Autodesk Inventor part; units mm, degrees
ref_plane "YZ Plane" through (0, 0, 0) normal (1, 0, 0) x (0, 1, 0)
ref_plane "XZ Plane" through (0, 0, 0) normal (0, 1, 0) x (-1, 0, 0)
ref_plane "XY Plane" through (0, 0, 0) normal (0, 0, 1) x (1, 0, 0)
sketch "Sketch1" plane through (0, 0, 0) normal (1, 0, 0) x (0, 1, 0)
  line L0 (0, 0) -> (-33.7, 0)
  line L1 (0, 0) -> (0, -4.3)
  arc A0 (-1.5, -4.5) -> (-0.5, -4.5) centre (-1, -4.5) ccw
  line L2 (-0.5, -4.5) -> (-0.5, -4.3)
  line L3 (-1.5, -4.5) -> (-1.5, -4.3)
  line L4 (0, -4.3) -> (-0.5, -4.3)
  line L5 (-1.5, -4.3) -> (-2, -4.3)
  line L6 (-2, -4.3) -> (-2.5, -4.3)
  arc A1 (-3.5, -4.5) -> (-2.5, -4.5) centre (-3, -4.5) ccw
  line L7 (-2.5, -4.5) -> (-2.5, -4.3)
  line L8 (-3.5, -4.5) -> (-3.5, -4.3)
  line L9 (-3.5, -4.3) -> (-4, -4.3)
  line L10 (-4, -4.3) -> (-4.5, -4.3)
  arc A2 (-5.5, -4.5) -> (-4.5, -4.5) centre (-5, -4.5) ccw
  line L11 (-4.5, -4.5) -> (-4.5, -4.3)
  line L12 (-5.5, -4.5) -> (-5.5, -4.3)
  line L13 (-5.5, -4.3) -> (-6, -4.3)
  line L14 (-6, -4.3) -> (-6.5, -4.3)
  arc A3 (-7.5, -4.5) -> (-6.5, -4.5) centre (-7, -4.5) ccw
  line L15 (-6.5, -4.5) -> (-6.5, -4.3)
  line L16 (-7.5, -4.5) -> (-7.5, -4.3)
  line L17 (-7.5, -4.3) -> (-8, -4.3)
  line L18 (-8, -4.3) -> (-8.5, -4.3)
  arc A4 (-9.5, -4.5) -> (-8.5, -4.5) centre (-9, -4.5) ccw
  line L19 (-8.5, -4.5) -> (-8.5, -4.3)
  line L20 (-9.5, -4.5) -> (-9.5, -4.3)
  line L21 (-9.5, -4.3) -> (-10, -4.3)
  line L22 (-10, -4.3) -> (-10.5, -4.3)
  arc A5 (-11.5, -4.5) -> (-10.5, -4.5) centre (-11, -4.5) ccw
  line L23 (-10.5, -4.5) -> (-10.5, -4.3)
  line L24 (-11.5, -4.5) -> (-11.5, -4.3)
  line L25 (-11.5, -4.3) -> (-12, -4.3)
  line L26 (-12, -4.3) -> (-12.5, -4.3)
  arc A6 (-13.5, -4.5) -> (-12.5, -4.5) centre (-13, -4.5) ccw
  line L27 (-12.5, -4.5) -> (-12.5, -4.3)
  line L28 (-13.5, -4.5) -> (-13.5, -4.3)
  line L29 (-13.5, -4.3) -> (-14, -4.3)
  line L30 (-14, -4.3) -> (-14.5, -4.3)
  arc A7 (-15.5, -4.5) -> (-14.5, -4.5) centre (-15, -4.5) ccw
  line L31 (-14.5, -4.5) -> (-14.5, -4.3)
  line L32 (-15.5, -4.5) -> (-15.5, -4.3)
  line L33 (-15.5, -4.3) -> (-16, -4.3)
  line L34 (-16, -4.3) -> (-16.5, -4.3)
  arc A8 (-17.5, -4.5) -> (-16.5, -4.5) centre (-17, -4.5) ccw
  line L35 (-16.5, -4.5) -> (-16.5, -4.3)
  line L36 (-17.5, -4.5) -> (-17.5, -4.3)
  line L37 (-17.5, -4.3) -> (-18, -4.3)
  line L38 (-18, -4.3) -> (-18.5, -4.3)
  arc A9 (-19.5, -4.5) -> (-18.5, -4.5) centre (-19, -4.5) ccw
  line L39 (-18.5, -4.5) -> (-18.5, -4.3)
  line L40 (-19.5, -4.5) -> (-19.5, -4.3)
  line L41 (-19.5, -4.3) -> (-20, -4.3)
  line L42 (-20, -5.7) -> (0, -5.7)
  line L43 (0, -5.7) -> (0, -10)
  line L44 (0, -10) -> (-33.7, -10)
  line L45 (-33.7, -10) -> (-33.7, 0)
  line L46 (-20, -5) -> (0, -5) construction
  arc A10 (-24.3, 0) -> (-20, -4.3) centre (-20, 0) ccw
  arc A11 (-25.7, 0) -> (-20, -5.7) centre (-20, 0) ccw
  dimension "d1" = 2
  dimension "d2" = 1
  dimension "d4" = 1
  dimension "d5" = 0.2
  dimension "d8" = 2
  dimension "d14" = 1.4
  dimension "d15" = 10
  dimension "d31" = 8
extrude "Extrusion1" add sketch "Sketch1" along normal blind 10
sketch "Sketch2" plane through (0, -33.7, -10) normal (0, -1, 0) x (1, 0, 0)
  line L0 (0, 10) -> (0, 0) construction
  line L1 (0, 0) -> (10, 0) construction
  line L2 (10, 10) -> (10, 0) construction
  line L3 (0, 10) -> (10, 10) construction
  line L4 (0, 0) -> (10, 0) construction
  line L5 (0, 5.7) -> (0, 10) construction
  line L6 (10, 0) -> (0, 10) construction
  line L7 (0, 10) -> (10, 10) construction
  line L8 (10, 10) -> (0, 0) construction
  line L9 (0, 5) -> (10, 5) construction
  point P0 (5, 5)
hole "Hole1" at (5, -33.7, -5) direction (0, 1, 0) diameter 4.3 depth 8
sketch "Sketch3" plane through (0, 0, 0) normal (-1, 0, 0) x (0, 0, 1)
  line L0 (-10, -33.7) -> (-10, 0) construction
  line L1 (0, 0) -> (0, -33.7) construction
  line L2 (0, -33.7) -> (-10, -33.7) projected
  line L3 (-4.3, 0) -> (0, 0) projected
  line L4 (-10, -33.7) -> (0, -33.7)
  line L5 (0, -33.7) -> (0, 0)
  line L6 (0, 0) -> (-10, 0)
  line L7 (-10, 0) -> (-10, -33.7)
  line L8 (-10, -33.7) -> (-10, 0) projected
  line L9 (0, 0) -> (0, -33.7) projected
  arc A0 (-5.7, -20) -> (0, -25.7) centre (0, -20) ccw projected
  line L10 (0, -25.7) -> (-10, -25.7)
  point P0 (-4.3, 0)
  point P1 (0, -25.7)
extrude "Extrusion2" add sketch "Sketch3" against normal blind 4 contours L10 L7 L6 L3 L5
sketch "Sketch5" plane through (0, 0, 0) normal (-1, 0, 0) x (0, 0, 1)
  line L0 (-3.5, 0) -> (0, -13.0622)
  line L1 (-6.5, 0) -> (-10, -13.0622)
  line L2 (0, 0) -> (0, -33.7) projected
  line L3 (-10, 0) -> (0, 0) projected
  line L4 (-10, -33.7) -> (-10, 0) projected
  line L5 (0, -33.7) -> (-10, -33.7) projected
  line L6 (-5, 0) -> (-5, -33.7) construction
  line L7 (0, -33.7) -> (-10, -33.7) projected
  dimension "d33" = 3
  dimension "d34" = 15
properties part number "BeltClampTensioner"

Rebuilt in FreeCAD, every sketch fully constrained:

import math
import FreeCAD as App
import Part
import Sketcher

V = App.Vector

doc = App.newDocument("Part")
body = doc.addObject("PartDesign::Body", "Body")
body.AllowCompound = True

sketch1 = body.newObject("Sketcher::SketchObject", "Sketch")
sketch1.AttachmentSupport = (doc.getObject("YZ_Plane"), [""])
sketch1.MapMode = "FlatFace"
sketch1.addGeometry(Part.LineSegment(V(0, -4.3, 0), V(0, 0, 0)), False)
sketch1.addGeometry(Part.LineSegment(V(0, 0, 0), V(-24.3, 0, 0)), False)
sketch1.addGeometry(Part.ArcOfCircle(Part.Circle(V(-20, 0, 0), V(0, 0, 1), 4.3), math.radians(180), math.radians(270)), False)
sketch1.addGeometry(Part.LineSegment(V(-20, -4.3, 0), V(-19.5, -4.3, 0)), False)
sketch1.addGeometry(Part.LineSegment(V(-19.5, -4.3, 0), V(-19.5, -4.5, 0)), False)
sketch1.addGeometry(Part.ArcOfCircle(Part.Circle(V(-19, -4.5, 0), V(0, 0, 1), 0.5), math.radians(180), math.radians(360)), False)
sketch1.addGeometry(Part.LineSegment(V(-18.5, -4.5, 0), V(-18.5, -4.3, 0)), False)
sketch1.addGeometry(Part.LineSegment(V(-18.5, -4.3, 0), V(-17.5, -4.3, 0)), False)
sketch1.addGeometry(Part.LineSegment(V(-17.5, -4.3, 0), V(-17.5, -4.5, 0)), False)
sketch1.addGeometry(Part.ArcOfCircle(Part.Circle(V(-17, -4.5, 0), V(0, 0, 1), 0.5), math.radians(180), math.radians(360)), False)
sketch1.addGeometry(Part.LineSegment(V(-16.5, -4.5, 0), V(-16.5, -4.3, 0)), False)
sketch1.addGeometry(Part.LineSegment(V(-16.5, -4.3, 0), V(-15.5, -4.3, 0)), False)
sketch1.addGeometry(Part.LineSegment(V(-15.5, -4.3, 0), V(-15.5, -4.5, 0)), False)
sketch1.addGeometry(Part.ArcOfCircle(Part.Circle(V(-15, -4.5, 0), V(0, 0, 1), 0.5), math.radians(180), math.radians(360)), False)
sketch1.addGeometry(Part.LineSegment(V(-14.5, -4.5, 0), V(-14.5, -4.3, 0)), False)
sketch1.addGeometry(Part.LineSegment(V(-14.5, -4.3, 0), V(-13.5, -4.3, 0)), False)
sketch1.addGeometry(Part.LineSegment(V(-13.5, -4.3, 0), V(-13.5, -4.5, 0)), False)
sketch1.addGeometry(Part.ArcOfCircle(Part.Circle(V(-13, -4.5, 0), V(0, 0, 1), 0.5), math.radians(180), math.radians(360)), False)
sketch1.addGeometry(Part.LineSegment(V(-12.5, -4.5, 0), V(-12.5, -4.3, 0)), False)
sketch1.addGeometry(Part.LineSegment(V(-12.5, -4.3, 0), V(-11.5, -4.3, 0)), False)
sketch1.addGeometry(Part.LineSegment(V(-11.5, -4.3, 0), V(-11.5, -4.5, 0)), False)
sketch1.addGeometry(Part.ArcOfCircle(Part.Circle(V(-11, -4.5, 0), V(0, 0, 1), 0.5), math.radians(180), math.radians(360)), False)
sketch1.addGeometry(Part.LineSegment(V(-10.5, -4.5, 0), V(-10.5, -4.3, 0)), False)
sketch1.addGeometry(Part.LineSegment(V(-10.5, -4.3, 0), V(-9.5, -4.3, 0)), False)
sketch1.addGeometry(Part.LineSegment(V(-9.5, -4.3, 0), V(-9.5, -4.5, 0)), False)
sketch1.addGeometry(Part.ArcOfCircle(Part.Circle(V(-9, -4.5, 0), V(0, 0, 1), 0.5), math.radians(180), math.radians(360)), False)
sketch1.addGeometry(Part.LineSegment(V(-8.5, -4.5, 0), V(-8.5, -4.3, 0)), False)
sketch1.addGeometry(Part.LineSegment(V(-8.5, -4.3, 0), V(-7.5, -4.3, 0)), False)
sketch1.addGeometry(Part.LineSegment(V(-7.5, -4.3, 0), V(-7.5, -4.5, 0)), False)
sketch1.addGeometry(Part.ArcOfCircle(Part.Circle(V(-7, -4.5, 0), V(0, 0, 1), 0.5), math.radians(180), math.radians(360)), False)
sketch1.addGeometry(Part.LineSegment(V(-6.5, -4.5, 0), V(-6.5, -4.3, 0)), False)
sketch1.addGeometry(Part.LineSegment(V(-6.5, -4.3, 0), V(-5.5, -4.3, 0)), False)
sketch1.addGeometry(Part.LineSegment(V(-5.5, -4.3, 0), V(-5.5, -4.5, 0)), False)
sketch1.addGeometry(Part.ArcOfCircle(Part.Circle(V(-5, -4.5, 0), V(0, 0, 1), 0.5), math.radians(180), math.radians(360)), False)
sketch1.addGeometry(Part.LineSegment(V(-4.5, -4.5, 0), V(-4.5, -4.3, 0)), False)
sketch1.addGeometry(Part.LineSegment(V(-4.5, -4.3, 0), V(-3.5, -4.3, 0)), False)
sketch1.addGeometry(Part.LineSegment(V(-3.5, -4.3, 0), V(-3.5, -4.5, 0)), False)
sketch1.addGeometry(Part.ArcOfCircle(Part.Circle(V(-3, -4.5, 0), V(0, 0, 1), 0.5), math.radians(180), math.radians(360)), False)
sketch1.addGeometry(Part.LineSegment(V(-2.5, -4.5, 0), V(-2.5, -4.3, 0)), False)
sketch1.addGeometry(Part.LineSegment(V(-2.5, -4.3, 0), V(-1.5, -4.3, 0)), False)
sketch1.addGeometry(Part.LineSegment(V(-1.5, -4.3, 0), V(-1.5, -4.5, 0)), False)
sketch1.addGeometry(Part.ArcOfCircle(Part.Circle(V(-1, -4.5, 0), V(0, 0, 1), 0.5), math.radians(180), math.radians(360)), False)
sketch1.addGeometry(Part.LineSegment(V(-0.5, -4.5, 0), V(-0.5, -4.3, 0)), False)
sketch1.addGeometry(Part.LineSegment(V(-0.5, -4.3, 0), V(0, -4.3, 0)), False)
sketch1.addGeometry(Part.ArcOfCircle(Part.Circle(V(-20, 0, 0), V(0, 0, 1), 5.7), math.radians(180), math.radians(270)), False)
sketch1.addGeometry(Part.LineSegment(V(-25.7, 0, 0), V(-33.7, 0, 0)), False)
sketch1.addGeometry(Part.LineSegment(V(-33.7, 0, 0), V(-33.7, -10, 0)), False)
sketch1.addGeometry(Part.LineSegment(V(-33.7, -10, 0), V(0, -10, 0)), False)
sketch1.addGeometry(Part.LineSegment(V(0, -10, 0), V(0, -5.7, 0)), False)
sketch1.addGeometry(Part.LineSegment(V(0, -5.7, 0), V(-20, -5.7, 0)), False)
sketch1.addConstraint(Sketcher.Constraint("Coincident", 0, 2, 1, 1))
sketch1.addConstraint(Sketcher.Constraint("Coincident", 1, 2, 2, 1))
sketch1.addConstraint(Sketcher.Constraint("Tangent", 2, 2, 3, 1))
sketch1.addConstraint(Sketcher.Constraint("Coincident", 3, 2, 4, 1))
sketch1.addConstraint(Sketcher.Constraint("Tangent", 4, 2, 5, 1))
sketch1.addConstraint(Sketcher.Constraint("Tangent", 5, 2, 6, 1))
sketch1.addConstraint(Sketcher.Constraint("Coincident", 6, 2, 7, 1))
sketch1.addConstraint(Sketcher.Constraint("Coincident", 7, 2, 8, 1))
sketch1.addConstraint(Sketcher.Constraint("Tangent", 8, 2, 9, 1))
sketch1.addConstraint(Sketcher.Constraint("Tangent", 9, 2, 10, 1))
sketch1.addConstraint(Sketcher.Constraint("Coincident", 10, 2, 11, 1))
sketch1.addConstraint(Sketcher.Constraint("Coincident", 11, 2, 12, 1))
sketch1.addConstraint(Sketcher.Constraint("Tangent", 12, 2, 13, 1))
sketch1.addConstraint(Sketcher.Constraint("Tangent", 13, 2, 14, 1))
sketch1.addConstraint(Sketcher.Constraint("Coincident", 14, 2, 15, 1))
sketch1.addConstraint(Sketcher.Constraint("Coincident", 15, 2, 16, 1))
sketch1.addConstraint(Sketcher.Constraint("Tangent", 16, 2, 17, 1))
sketch1.addConstraint(Sketcher.Constraint("Tangent", 17, 2, 18, 1))
sketch1.addConstraint(Sketcher.Constraint("Coincident", 18, 2, 19, 1))
sketch1.addConstraint(Sketcher.Constraint("Coincident", 19, 2, 20, 1))
sketch1.addConstraint(Sketcher.Constraint("Tangent", 20, 2, 21, 1))
sketch1.addConstraint(Sketcher.Constraint("Tangent", 21, 2, 22, 1))
sketch1.addConstraint(Sketcher.Constraint("Coincident", 22, 2, 23, 1))
sketch1.addConstraint(Sketcher.Constraint("Coincident", 23, 2, 24, 1))
sketch1.addConstraint(Sketcher.Constraint("Tangent", 24, 2, 25, 1))
sketch1.addConstraint(Sketcher.Constraint("Tangent", 25, 2, 26, 1))
sketch1.addConstraint(Sketcher.Constraint("Coincident", 26, 2, 27, 1))
sketch1.addConstraint(Sketcher.Constraint("Coincident", 27, 2, 28, 1))
sketch1.addConstraint(Sketcher.Constraint("Tangent", 28, 2, 29, 1))
sketch1.addConstraint(Sketcher.Constraint("Tangent", 29, 2, 30, 1))
sketch1.addConstraint(Sketcher.Constraint("Coincident", 30, 2, 31, 1))
sketch1.addConstraint(Sketcher.Constraint("Coincident", 31, 2, 32, 1))
sketch1.addConstraint(Sketcher.Constraint("Tangent", 32, 2, 33, 1))
sketch1.addConstraint(Sketcher.Constraint("Tangent", 33, 2, 34, 1))
sketch1.addConstraint(Sketcher.Constraint("Coincident", 34, 2, 35, 1))
sketch1.addConstraint(Sketcher.Constraint("Coincident", 35, 2, 36, 1))
sketch1.addConstraint(Sketcher.Constraint("Tangent", 36, 2, 37, 1))
sketch1.addConstraint(Sketcher.Constraint("Tangent", 37, 2, 38, 1))
sketch1.addConstraint(Sketcher.Constraint("Coincident", 38, 2, 39, 1))
sketch1.addConstraint(Sketcher.Constraint("Coincident", 39, 2, 40, 1))
sketch1.addConstraint(Sketcher.Constraint("Tangent", 40, 2, 41, 1))
sketch1.addConstraint(Sketcher.Constraint("Tangent", 41, 2, 42, 1))
sketch1.addConstraint(Sketcher.Constraint("Coincident", 42, 2, 43, 1))
sketch1.addConstraint(Sketcher.Constraint("Coincident", 43, 2, 0, 1))
sketch1.addConstraint(Sketcher.Constraint("Coincident", 44, 1, 45, 1))
sketch1.addConstraint(Sketcher.Constraint("Coincident", 45, 2, 46, 1))
sketch1.addConstraint(Sketcher.Constraint("Coincident", 46, 2, 47, 1))
sketch1.addConstraint(Sketcher.Constraint("Coincident", 47, 2, 48, 1))
sketch1.addConstraint(Sketcher.Constraint("Coincident", 48, 2, 49, 1))
sketch1.addConstraint(Sketcher.Constraint("Tangent", 49, 2, 44, 2))
sketch1.addConstraint(Sketcher.Constraint("Vertical", 0))
sketch1.addConstraint(Sketcher.Constraint("Horizontal", 1))
sketch1.addConstraint(Sketcher.Constraint("Horizontal", 3))
sketch1.addConstraint(Sketcher.Constraint("Vertical", 4))
sketch1.addConstraint(Sketcher.Constraint("Vertical", 6))
sketch1.addConstraint(Sketcher.Constraint("Horizontal", 7))
sketch1.addConstraint(Sketcher.Constraint("Vertical", 8))
sketch1.addConstraint(Sketcher.Constraint("Vertical", 10))
sketch1.addConstraint(Sketcher.Constraint("Horizontal", 11))
sketch1.addConstraint(Sketcher.Constraint("Vertical", 12))
sketch1.addConstraint(Sketcher.Constraint("Vertical", 14))
sketch1.addConstraint(Sketcher.Constraint("Horizontal", 15))
sketch1.addConstraint(Sketcher.Constraint("Vertical", 16))
sketch1.addConstraint(Sketcher.Constraint("Vertical", 18))
sketch1.addConstraint(Sketcher.Constraint("Horizontal", 19))
sketch1.addConstraint(Sketcher.Constraint("Vertical", 20))
sketch1.addConstraint(Sketcher.Constraint("Vertical", 22))
sketch1.addConstraint(Sketcher.Constraint("Horizontal", 23))
sketch1.addConstraint(Sketcher.Constraint("Vertical", 24))
sketch1.addConstraint(Sketcher.Constraint("Vertical", 26))
sketch1.addConstraint(Sketcher.Constraint("Horizontal", 27))
sketch1.addConstraint(Sketcher.Constraint("Vertical", 28))
sketch1.addConstraint(Sketcher.Constraint("Vertical", 30))
sketch1.addConstraint(Sketcher.Constraint("Horizontal", 31))
sketch1.addConstraint(Sketcher.Constraint("Vertical", 32))
sketch1.addConstraint(Sketcher.Constraint("Vertical", 34))
sketch1.addConstraint(Sketcher.Constraint("Horizontal", 35))
sketch1.addConstraint(Sketcher.Constraint("Vertical", 36))
sketch1.addConstraint(Sketcher.Constraint("Vertical", 38))
sketch1.addConstraint(Sketcher.Constraint("Horizontal", 39))
sketch1.addConstraint(Sketcher.Constraint("Vertical", 40))
sketch1.addConstraint(Sketcher.Constraint("Vertical", 42))
sketch1.addConstraint(Sketcher.Constraint("Horizontal", 43))
sketch1.addConstraint(Sketcher.Constraint("Horizontal", 45))
sketch1.addConstraint(Sketcher.Constraint("Vertical", 46))
sketch1.addConstraint(Sketcher.Constraint("Horizontal", 47))
sketch1.addConstraint(Sketcher.Constraint("Vertical", 48))
sketch1.addConstraint(Sketcher.Constraint("Horizontal", 49))
sketch1.addConstraint(Sketcher.Constraint("Coincident", 0, 2, -1, 1))
sketch1.addConstraint(Sketcher.Constraint("Coincident", 44, 3, 2, 3))
sketch1.addConstraint(Sketcher.Constraint("Equal", 5, 9))
sketch1.addConstraint(Sketcher.Constraint("Equal", 9, 13))
sketch1.addConstraint(Sketcher.Constraint("Equal", 13, 17))
sketch1.addConstraint(Sketcher.Constraint("Equal", 17, 21))
sketch1.addConstraint(Sketcher.Constraint("Equal", 21, 25))
sketch1.addConstraint(Sketcher.Constraint("Equal", 25, 29))
sketch1.addConstraint(Sketcher.Constraint("Equal", 29, 33))
sketch1.addConstraint(Sketcher.Constraint("Equal", 33, 37))
sketch1.addConstraint(Sketcher.Constraint("Equal", 37, 41))
sketch1.addConstraint(Sketcher.Constraint("PointOnObject", 2, 3, -1))
sketch1.addConstraint(Sketcher.Constraint("PointOnObject", 44, 1, -1))
sketch1.addConstraint(Sketcher.Constraint("PointOnObject", 47, 2, -2))
sketch1.addConstraint(Sketcher.Constraint("Horizontal", 5, 3, 9, 3))
sketch1.addConstraint(Sketcher.Constraint("Horizontal", 9, 3, 13, 3))
sketch1.addConstraint(Sketcher.Constraint("Horizontal", 13, 3, 17, 3))
sketch1.addConstraint(Sketcher.Constraint("Horizontal", 17, 3, 21, 3))
sketch1.addConstraint(Sketcher.Constraint("Horizontal", 21, 3, 25, 3))
sketch1.addConstraint(Sketcher.Constraint("Horizontal", 25, 3, 29, 3))
sketch1.addConstraint(Sketcher.Constraint("Horizontal", 29, 3, 33, 3))
sketch1.addConstraint(Sketcher.Constraint("Horizontal", 33, 3, 37, 3))
sketch1.addConstraint(Sketcher.Constraint("Horizontal", 37, 3, 41, 3))
sketch1.addConstraint(Sketcher.Constraint("Horizontal", 3, 2, 6, 2))
sketch1.addConstraint(Sketcher.Constraint("Horizontal", 7, 2, 10, 2))
sketch1.addConstraint(Sketcher.Constraint("Horizontal", 11, 2, 14, 2))
sketch1.addConstraint(Sketcher.Constraint("Horizontal", 15, 2, 18, 2))
sketch1.addConstraint(Sketcher.Constraint("Horizontal", 19, 2, 22, 2))
sketch1.addConstraint(Sketcher.Constraint("Horizontal", 23, 2, 26, 2))
sketch1.addConstraint(Sketcher.Constraint("Horizontal", 27, 2, 30, 2))
sketch1.addConstraint(Sketcher.Constraint("Horizontal", 31, 2, 34, 2))
sketch1.addConstraint(Sketcher.Constraint("Horizontal", 35, 2, 38, 2))
sketch1.addConstraint(Sketcher.Constraint("Horizontal", 39, 2, 42, 2))
sketch1.addConstraint(Sketcher.Constraint("Equal", 7, 11))
sketch1.addConstraint(Sketcher.Constraint("Equal", 11, 15))
sketch1.addConstraint(Sketcher.Constraint("Equal", 15, 19))
sketch1.addConstraint(Sketcher.Constraint("Equal", 19, 23))
sketch1.addConstraint(Sketcher.Constraint("Equal", 23, 27))
sketch1.addConstraint(Sketcher.Constraint("Equal", 27, 31))
sketch1.addConstraint(Sketcher.Constraint("Equal", 31, 35))
sketch1.addConstraint(Sketcher.Constraint("Equal", 35, 39))
sketch1.addConstraint(Sketcher.Constraint("Equal", 3, 43))
sketch1.addConstraint(Sketcher.Constraint("Equal", 0, 48))
sketch1.addConstraint(Sketcher.Constraint("Radius", 5, 0.5))
sketch1.addConstraint(Sketcher.Constraint("DistanceX", 7, 1, 7, 2, 1.0))
sketch1.addConstraint(Sketcher.Constraint("DistanceX", 45, 2, 45, 1, 8.0))
sketch1.addConstraint(Sketcher.Constraint("DistanceY", 46, 2, 46, 1, 10.0))
sketch1.addConstraint(Sketcher.Constraint("DistanceY", 4, 2, 4, 1, 0.2))
sketch1.addConstraint(Sketcher.Constraint("DistanceX", 41, 3, -1, 1, 1.0))
sketch1.addConstraint(Sketcher.Constraint("Radius", 2, 4.3))
pad1 = body.newObject("PartDesign::Pad", "Pad")
pad1.Profile = sketch1
pad1.Length = 10

sketch2 = body.newObject("Sketcher::SketchObject", "Sketch001")
sketch2.AttachmentSupport = (doc.getObject("XZ_Plane"), [""])
sketch2.MapMode = "FlatFace"
sketch2.AttachmentOffset = App.Placement(V(0, 0, 33.7), App.Rotation())
sketch2.addGeometry(Part.Circle(V(5, -5, 0), V(0, 0, 1), 2.1), False)
sketch2.addConstraint(Sketcher.Constraint("Diameter", 0, 4.3))
sketch2.addConstraint(Sketcher.Constraint("DistanceX", -1, 1, 0, 3, 5.0))
sketch2.addConstraint(Sketcher.Constraint("DistanceY", 0, 3, -1, 1, 5.0))
doc.recompute()
hole = body.newObject("PartDesign::Hole", "Hole")
hole.Profile = sketch2
hole.ThreadType = "None"
hole.Diameter = 4.3
hole.DepthType = "Dimension"
hole.Depth = 8
hole.DrillPoint = "Flat"

sketch3 = body.newObject("Sketcher::SketchObject", "Sketch002")
sketch3.AttachmentSupport = (doc.getObject("YZ_Plane"), [""])
sketch3.MapMode = "FlatFace"
sketch3.addGeometry(Part.LineSegment(V(-26, -10, 0), V(-26, 0, 0)), False)
sketch3.addGeometry(Part.LineSegment(V(-26, 0, 0), V(0, 0, 0)), False)
sketch3.addGeometry(Part.LineSegment(V(0, 0, 0), V(0, -10, 0)), False)
sketch3.addGeometry(Part.LineSegment(V(0, -10, 0), V(-26, -10, 0)), False)
sketch3.addConstraint(Sketcher.Constraint("Coincident", 0, 2, 1, 1))
sketch3.addConstraint(Sketcher.Constraint("Coincident", 1, 2, 2, 1))
sketch3.addConstraint(Sketcher.Constraint("Coincident", 2, 2, 3, 1))
sketch3.addConstraint(Sketcher.Constraint("Coincident", 3, 2, 0, 1))
sketch3.addConstraint(Sketcher.Constraint("Vertical", 0))
sketch3.addConstraint(Sketcher.Constraint("Horizontal", 1))
sketch3.addConstraint(Sketcher.Constraint("Vertical", 2))
sketch3.addConstraint(Sketcher.Constraint("Horizontal", 3))
sketch3.addConstraint(Sketcher.Constraint("Coincident", 1, 2, -1, 1))
sketch3.addConstraint(Sketcher.Constraint("DistanceY", 0, 1, 0, 2, 10.0))
sketch3.addConstraint(Sketcher.Constraint("DistanceX", 1, 1, 1, 2, 25.7))
pad2 = body.newObject("PartDesign::Pad", "Pad001")
pad2.Profile = sketch3
pad2.Length = 4

doc.recompute()
